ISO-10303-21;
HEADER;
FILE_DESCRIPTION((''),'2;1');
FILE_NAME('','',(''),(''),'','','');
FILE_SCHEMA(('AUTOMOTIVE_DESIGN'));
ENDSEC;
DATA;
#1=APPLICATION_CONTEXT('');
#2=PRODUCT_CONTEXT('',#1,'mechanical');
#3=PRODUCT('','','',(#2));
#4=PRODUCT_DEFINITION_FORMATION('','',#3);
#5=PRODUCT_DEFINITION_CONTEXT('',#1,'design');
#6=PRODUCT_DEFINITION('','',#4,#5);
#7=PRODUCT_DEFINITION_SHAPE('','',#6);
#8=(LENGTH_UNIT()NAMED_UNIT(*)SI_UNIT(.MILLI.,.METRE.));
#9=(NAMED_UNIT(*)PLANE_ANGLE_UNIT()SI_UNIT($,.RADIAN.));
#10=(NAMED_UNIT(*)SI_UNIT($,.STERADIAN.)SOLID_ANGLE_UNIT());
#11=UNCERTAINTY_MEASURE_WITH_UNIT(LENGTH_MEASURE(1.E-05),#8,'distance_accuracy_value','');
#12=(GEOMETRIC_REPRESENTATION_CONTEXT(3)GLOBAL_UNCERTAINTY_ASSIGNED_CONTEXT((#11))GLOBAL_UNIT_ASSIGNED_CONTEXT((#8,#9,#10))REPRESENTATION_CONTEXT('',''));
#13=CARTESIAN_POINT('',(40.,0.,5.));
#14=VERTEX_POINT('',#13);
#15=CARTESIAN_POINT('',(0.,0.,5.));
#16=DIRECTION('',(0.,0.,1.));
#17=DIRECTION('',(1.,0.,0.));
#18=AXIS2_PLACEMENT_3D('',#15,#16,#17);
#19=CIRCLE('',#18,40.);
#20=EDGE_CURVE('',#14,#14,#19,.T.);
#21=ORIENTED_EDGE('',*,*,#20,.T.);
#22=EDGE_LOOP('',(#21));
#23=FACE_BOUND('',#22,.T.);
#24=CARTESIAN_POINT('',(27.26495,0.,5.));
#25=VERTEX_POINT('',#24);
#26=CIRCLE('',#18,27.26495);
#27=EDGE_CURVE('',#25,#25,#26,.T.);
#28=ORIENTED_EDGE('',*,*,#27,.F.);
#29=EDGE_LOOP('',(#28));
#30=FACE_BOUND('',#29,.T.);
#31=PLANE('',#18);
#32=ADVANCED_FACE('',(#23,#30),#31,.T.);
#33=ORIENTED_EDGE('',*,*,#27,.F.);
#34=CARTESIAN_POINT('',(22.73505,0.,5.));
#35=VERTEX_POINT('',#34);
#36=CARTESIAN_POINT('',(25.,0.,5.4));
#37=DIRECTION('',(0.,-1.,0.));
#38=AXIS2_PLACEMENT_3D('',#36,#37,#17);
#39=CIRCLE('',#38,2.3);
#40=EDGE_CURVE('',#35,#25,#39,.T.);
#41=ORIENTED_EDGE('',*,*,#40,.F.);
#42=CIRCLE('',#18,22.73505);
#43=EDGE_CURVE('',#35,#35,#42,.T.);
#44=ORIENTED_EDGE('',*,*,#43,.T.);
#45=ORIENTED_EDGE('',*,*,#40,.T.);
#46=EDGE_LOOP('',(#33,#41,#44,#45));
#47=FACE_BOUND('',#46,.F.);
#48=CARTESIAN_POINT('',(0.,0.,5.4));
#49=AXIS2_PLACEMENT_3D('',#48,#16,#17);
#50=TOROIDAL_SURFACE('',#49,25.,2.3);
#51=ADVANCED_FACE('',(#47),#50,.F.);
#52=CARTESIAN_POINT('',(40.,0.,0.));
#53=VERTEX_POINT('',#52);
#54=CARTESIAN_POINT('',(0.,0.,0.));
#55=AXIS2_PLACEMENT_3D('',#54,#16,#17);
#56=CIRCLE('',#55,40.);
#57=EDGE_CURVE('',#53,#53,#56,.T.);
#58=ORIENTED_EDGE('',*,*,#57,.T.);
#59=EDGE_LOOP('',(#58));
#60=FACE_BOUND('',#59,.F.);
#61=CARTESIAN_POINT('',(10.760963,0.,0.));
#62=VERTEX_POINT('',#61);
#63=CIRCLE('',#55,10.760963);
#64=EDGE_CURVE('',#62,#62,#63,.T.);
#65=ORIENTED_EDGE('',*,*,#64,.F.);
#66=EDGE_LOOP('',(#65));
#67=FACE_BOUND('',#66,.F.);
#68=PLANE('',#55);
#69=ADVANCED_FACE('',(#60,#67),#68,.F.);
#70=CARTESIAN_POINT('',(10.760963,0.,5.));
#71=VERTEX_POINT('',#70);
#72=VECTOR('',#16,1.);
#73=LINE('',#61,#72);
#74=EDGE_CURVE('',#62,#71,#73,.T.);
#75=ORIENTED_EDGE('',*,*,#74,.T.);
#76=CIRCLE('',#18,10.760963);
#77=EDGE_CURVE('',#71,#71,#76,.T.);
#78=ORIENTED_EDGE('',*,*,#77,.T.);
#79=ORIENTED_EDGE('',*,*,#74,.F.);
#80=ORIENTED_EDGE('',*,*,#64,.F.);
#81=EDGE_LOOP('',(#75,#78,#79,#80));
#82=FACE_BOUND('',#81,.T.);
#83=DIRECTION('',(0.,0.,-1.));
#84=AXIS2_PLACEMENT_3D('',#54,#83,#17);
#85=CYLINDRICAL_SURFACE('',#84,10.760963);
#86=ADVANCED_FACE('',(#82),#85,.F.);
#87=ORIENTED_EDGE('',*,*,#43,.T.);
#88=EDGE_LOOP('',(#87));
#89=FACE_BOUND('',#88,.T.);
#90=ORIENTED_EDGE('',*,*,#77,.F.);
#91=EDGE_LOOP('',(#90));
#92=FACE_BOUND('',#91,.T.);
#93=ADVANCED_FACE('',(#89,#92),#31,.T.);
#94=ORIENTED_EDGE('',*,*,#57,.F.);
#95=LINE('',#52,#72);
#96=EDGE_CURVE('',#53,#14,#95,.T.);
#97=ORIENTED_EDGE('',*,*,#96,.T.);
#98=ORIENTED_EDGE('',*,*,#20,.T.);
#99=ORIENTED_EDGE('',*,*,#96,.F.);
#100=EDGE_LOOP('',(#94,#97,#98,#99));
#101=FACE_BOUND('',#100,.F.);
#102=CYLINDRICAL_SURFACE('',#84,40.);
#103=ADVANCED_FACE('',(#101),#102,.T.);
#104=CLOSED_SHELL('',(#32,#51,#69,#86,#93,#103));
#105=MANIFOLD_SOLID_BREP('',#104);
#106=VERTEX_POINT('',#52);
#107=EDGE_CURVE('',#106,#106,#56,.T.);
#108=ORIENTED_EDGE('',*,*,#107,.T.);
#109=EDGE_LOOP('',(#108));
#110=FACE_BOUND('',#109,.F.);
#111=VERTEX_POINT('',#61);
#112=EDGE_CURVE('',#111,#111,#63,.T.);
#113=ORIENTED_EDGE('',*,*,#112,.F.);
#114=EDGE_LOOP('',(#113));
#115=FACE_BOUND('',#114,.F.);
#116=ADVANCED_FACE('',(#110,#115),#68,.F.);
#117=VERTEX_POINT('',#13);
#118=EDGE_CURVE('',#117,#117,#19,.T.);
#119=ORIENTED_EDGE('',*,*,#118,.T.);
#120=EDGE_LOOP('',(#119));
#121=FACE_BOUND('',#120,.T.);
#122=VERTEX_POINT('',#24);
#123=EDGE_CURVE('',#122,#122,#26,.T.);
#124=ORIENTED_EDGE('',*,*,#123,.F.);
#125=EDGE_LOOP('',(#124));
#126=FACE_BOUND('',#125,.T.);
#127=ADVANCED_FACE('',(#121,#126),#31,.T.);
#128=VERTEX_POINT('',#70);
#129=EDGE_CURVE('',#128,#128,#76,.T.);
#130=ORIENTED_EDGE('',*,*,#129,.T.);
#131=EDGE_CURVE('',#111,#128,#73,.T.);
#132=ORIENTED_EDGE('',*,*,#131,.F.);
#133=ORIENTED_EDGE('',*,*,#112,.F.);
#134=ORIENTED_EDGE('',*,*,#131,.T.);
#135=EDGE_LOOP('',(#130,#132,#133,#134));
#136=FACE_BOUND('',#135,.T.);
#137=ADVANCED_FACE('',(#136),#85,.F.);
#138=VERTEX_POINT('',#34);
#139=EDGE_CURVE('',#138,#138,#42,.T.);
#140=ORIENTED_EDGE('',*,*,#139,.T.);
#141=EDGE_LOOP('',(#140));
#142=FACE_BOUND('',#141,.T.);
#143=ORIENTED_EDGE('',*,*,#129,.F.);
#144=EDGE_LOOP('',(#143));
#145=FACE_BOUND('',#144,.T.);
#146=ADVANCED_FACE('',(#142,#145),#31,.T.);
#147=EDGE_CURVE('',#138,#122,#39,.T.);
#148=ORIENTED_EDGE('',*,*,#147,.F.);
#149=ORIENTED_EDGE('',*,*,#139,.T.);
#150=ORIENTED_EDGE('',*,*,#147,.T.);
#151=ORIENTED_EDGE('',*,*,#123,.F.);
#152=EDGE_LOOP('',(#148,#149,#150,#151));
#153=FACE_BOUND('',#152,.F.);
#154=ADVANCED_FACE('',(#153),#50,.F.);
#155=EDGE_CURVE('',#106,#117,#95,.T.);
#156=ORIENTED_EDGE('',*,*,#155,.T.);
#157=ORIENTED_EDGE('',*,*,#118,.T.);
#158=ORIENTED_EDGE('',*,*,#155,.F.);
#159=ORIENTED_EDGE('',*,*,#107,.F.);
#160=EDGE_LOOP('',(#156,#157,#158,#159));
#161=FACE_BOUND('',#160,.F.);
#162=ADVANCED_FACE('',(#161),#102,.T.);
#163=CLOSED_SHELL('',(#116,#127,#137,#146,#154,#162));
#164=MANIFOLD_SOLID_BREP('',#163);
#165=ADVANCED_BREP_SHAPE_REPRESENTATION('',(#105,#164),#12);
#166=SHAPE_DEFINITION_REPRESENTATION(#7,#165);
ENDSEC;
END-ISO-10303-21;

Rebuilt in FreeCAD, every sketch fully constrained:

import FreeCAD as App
import Part
import Sketcher

V = App.Vector
Q = App.Units.Quantity

doc = App.newDocument("Part")
body = doc.addObject("PartDesign::Body", "Body")

# Sketch on XY plane
sketch1 = body.newObject("Sketcher::SketchObject", "Sketch")
sketch1.AttachmentSupport = (doc.getObject("XY_Plane"), [""])
sketch1.MapMode = "FlatFace"
sketch1.addGeometry(Part.Circle(V(25, 5.4, 0), V(0, 0, 1), 2.3), False)
sketch1.addConstraint(Sketcher.Constraint("Diameter", 0, Q("4.6 mm")))
sketch1.addConstraint(Sketcher.Constraint("DistanceX", -1, 1, 0, 3, Q("25 mm")))
sketch1.addConstraint(Sketcher.Constraint("DistanceY", -1, 1, 0, 3, Q("5.4 mm")))
revolution = body.newObject("PartDesign::Revolution", "Revolution")
revolution.Profile = sketch1
revolution.ReferenceAxis = (sketch1, ["V_Axis"])
revolution.Angle = 360
body2 = doc.addObject("PartDesign::Body", "Body001")
doc.recompute()

body.Placement = App.Placement(V(0, 0, 0), App.Rotation(V(1, 0, 0), 90))
boolean = body2.newObject("PartDesign::Boolean", "Boolean")
boolean.Type = "Fuse"
boolean.addObjects([body])
body3 = doc.addObject("PartDesign::Body", "Body002")

# Sketch on XY plane
sketch2 = body3.newObject("Sketcher::SketchObject", "Sketch001")
sketch2.AttachmentSupport = (doc.getObject("XY_Plane002"), [""])
sketch2.MapMode = "FlatFace"
sketch2.addGeometry(Part.Circle(V(0, 0, 0), V(0, 0, 1), 11), False)
sketch2.addConstraint(Sketcher.Constraint("Coincident", 0, 3, -1, 1))
sketch2.addConstraint(Sketcher.Constraint("Diameter", 0, Q("21.521926 mm")))
pad1 = body3.newObject("PartDesign::Pad", "Pad")
pad1.Profile = sketch2
pad1.Length = 5
body4 = doc.addObject("PartDesign::Body", "Body003")

# Sketch on XY plane
sketch3 = body4.newObject("Sketcher::SketchObject", "Sketch002")
sketch3.AttachmentSupport = (doc.getObject("XY_Plane003"), [""])
sketch3.MapMode = "FlatFace"
sketch3.addGeometry(Part.Circle(V(0, 0, 0), V(0, 0, 1), 40), False)
sketch3.addConstraint(Sketcher.Constraint("Coincident", 0, 3, -1, 1))
sketch3.addConstraint(Sketcher.Constraint("Diameter", 0, Q("80 mm")))
pad2 = body4.newObject("PartDesign::Pad", "Pad001")
pad2.Profile = sketch3
pad2.Length = 5
doc.recompute()

boolean2 = body4.newObject("PartDesign::Boolean", "Boolean001")
boolean2.Type = "Cut"
boolean2.addObjects([body3])
doc.recompute()

boolean3 = body4.newObject("PartDesign::Boolean", "Boolean002")
boolean3.Type = "Cut"
boolean3.addObjects([body2])
body5 = doc.addObject("PartDesign::Body", "Body004")

# Sketch on XY plane
sketch4 = body5.newObject("Sketcher::SketchObject", "Sketch003")
sketch4.AttachmentSupport = (doc.getObject("XY_Plane004"), [""])
sketch4.MapMode = "FlatFace"
sketch4.addGeometry(Part.Circle(V(25, 5.4, 0), V(0, 0, 1), 2.3), False)
sketch4.addConstraint(Sketcher.Constraint("Diameter", 0, Q("4.6 mm")))
sketch4.addConstraint(Sketcher.Constraint("DistanceX", -1, 1, 0, 3, Q("25 mm")))
sketch4.addConstraint(Sketcher.Constraint("DistanceY", -1, 1, 0, 3, Q("5.4 mm")))
revolution2 = body5.newObject("PartDesign::Revolution", "Revolution001")
revolution2.Profile = sketch4
revolution2.ReferenceAxis = (sketch4, ["V_Axis"])
revolution2.Angle = 360
body6 = doc.addObject("PartDesign::Body", "Body005")
doc.recompute()

body5.Placement = App.Placement(V(0, 0, 0), App.Rotation(V(1, 0, 0), 90))
boolean4 = body6.newObject("PartDesign::Boolean", "Boolean003")
boolean4.Type = "Fuse"
boolean4.addObjects([body5])
body7 = doc.addObject("PartDesign::Body", "Body006")

# Sketch on XY plane
sketch5 = body7.newObject("Sketcher::SketchObject", "Sketch004")
sketch5.AttachmentSupport = (doc.getObject("XY_Plane006"), [""])
sketch5.MapMode = "FlatFace"
sketch5.addGeometry(Part.Circle(V(0, 0, 0), V(0, 0, 1), 11), False)
sketch5.addConstraint(Sketcher.Constraint("Coincident", 0, 3, -1, 1))
sketch5.addConstraint(Sketcher.Constraint("Diameter", 0, Q("21.521926 mm")))
pad3 = body7.newObject("PartDesign::Pad", "Pad002")
pad3.Profile = sketch5
pad3.Length = 5
body8 = doc.addObject("PartDesign::Body", "Body007")

# Sketch on XY plane
sketch6 = body8.newObject("Sketcher::SketchObject", "Sketch005")
sketch6.AttachmentSupport = (doc.getObject("XY_Plane007"), [""])
sketch6.MapMode = "FlatFace"
sketch6.addGeometry(Part.Circle(V(0, 0, 0), V(0, 0, 1), 40), False)
sketch6.addConstraint(Sketcher.Constraint("Coincident", 0, 3, -1, 1))
sketch6.addConstraint(Sketcher.Constraint("Diameter", 0, Q("80 mm")))
pad4 = body8.newObject("PartDesign::Pad", "Pad003")
pad4.Profile = sketch6
pad4.Length = 5
doc.recompute()

boolean5 = body8.newObject("PartDesign::Boolean", "Boolean004")
boolean5.Type = "Cut"
boolean5.addObjects([body7])
doc.recompute()

boolean6 = body8.newObject("PartDesign::Boolean", "Boolean005")
boolean6.Type = "Cut"
boolean6.addObjects([body6])

doc.recompute()
